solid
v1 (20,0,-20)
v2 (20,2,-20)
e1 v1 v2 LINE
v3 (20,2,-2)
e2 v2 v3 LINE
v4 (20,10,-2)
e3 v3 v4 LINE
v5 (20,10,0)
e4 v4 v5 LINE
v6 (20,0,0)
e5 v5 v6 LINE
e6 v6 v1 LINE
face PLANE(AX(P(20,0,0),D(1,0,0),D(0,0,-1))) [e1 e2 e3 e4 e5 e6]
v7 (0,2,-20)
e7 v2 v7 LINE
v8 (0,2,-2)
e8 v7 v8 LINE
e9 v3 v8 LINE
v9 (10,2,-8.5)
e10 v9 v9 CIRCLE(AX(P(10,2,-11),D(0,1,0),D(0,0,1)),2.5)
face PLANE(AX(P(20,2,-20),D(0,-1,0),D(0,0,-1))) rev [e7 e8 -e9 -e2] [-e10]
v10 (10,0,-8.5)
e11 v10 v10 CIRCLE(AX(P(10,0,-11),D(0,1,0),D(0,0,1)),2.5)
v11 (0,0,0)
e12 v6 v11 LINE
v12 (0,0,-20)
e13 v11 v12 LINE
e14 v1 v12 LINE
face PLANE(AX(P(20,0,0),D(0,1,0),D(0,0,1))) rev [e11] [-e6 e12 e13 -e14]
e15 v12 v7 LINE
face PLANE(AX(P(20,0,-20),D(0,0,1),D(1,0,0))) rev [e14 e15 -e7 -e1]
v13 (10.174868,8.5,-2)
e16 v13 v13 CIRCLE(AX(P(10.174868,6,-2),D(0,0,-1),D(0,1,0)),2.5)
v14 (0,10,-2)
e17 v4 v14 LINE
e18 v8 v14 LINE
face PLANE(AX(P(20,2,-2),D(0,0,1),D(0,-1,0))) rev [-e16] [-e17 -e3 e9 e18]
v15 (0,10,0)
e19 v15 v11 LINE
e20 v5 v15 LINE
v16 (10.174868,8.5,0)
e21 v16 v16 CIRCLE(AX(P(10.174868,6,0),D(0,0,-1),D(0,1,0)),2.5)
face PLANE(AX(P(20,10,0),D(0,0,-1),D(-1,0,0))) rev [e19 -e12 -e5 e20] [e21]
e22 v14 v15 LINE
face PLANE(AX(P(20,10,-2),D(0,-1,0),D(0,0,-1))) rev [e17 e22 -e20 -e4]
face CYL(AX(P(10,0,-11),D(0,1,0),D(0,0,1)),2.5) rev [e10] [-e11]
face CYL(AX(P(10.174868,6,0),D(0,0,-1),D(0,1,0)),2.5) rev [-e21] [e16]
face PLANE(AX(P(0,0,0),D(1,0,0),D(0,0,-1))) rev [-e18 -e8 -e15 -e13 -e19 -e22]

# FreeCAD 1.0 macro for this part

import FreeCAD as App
import Part
import Sketcher

V = App.Vector

doc = App.newDocument("Part")
params = doc.addObject("Spreadsheet::Sheet", "Params")
for row, (alias, value) in enumerate([
    ("sketch1_width", "10 mm"),
    ("sketch1_width2", "2 mm"),
    ("sketch1_height", "20 mm"),
    ("pad1_length", "20 mm"),
    ("sketch2_diameter", "5 mm"),
    ("pocket1_length", "2 mm"),
    ("sketch3_diameter", "5 mm"),
    ("pocket2_length", "2 mm"),
], start=1):
    params.set(f"A{row}", alias)
    params.set(f"B{row}", "=" + value)
    params.setAlias(f"B{row}", alias)

body = doc.addObject("PartDesign::Body", "Body")

# Sketch on YZ plane
sketch1 = doc.addObject("Sketcher::SketchObject", "Sketch")
body.addObject(sketch1)
sketch1.AttachmentSupport = (doc.YZ_Plane, [""])
sketch1.MapMode = "FlatFace"
sketch1.addGeometry(Part.LineSegment(V(10, 0, 0), V(0, 0, 0)), False)
sketch1.addGeometry(Part.LineSegment(V(0, 0, 0), V(0, -20, 0)), False)
sketch1.addGeometry(Part.LineSegment(V(0, -20, 0), V(2, -20, 0)), False)
sketch1.addGeometry(Part.LineSegment(V(2, -20, 0), V(2, -2, 0)), False)
sketch1.addGeometry(Part.LineSegment(V(2, -2, 0), V(10, -2, 0)), False)
sketch1.addGeometry(Part.LineSegment(V(10, -2, 0), V(10, 0, 0)), False)
sketch1.addConstraint(Sketcher.Constraint("Coincident", 0, 2, 1, 1))
sketch1.addConstraint(Sketcher.Constraint("Coincident", 1, 2, 2, 1))
sketch1.addConstraint(Sketcher.Constraint("Coincident", 2, 2, 3, 1))
sketch1.addConstraint(Sketcher.Constraint("Coincident", 3, 2, 4, 1))
sketch1.addConstraint(Sketcher.Constraint("Coincident", 4, 2, 5, 1))
sketch1.addConstraint(Sketcher.Constraint("Coincident", 5, 2, 0, 1))
sketch1.addConstraint(Sketcher.Constraint("Horizontal", 0))
sketch1.addConstraint(Sketcher.Constraint("Vertical", 1))
sketch1.addConstraint(Sketcher.Constraint("Horizontal", 2))
sketch1.addConstraint(Sketcher.Constraint("Vertical", 3))
sketch1.addConstraint(Sketcher.Constraint("Horizontal", 4))
sketch1.addConstraint(Sketcher.Constraint("Vertical", 5))
sketch1.addConstraint(Sketcher.Constraint("Coincident", 0, 2, -1, 1))
sketch1.addConstraint(Sketcher.Constraint("Equal", 2, 5))
sketch1.addConstraint(Sketcher.Constraint("DistanceX", 0, 2, 0, 1, 10.0))
sketch1.addConstraint(Sketcher.Constraint("DistanceX", 2, 1, 2, 2, 2.0))
sketch1.addConstraint(Sketcher.Constraint("DistanceY", 1, 2, 1, 1, 20.0))
sketch1.setExpression("Constraints[14]", "Params.sketch1_width")
sketch1.setExpression("Constraints[15]", "Params.sketch1_width2")
sketch1.setExpression("Constraints[16]", "Params.sketch1_height")
pad1 = doc.addObject("PartDesign::Pad", "Pad")
body.addObject(pad1)
pad1.Profile = sketch1
pad1.setExpression("Length", "Params.pad1_length")

# Sketch on XY plane
sketch2 = doc.addObject("Sketcher::SketchObject", "Sketch001")
body.addObject(sketch2)
sketch2.AttachmentSupport = (doc.XY_Plane, [""])
sketch2.MapMode = "FlatFace"
sketch2.AttachmentOffset = App.Placement(V(0, 0, -2), App.Rotation())
sketch2.addGeometry(Part.Circle(V(10.2, 6, 0), V(0, 0, 1), 2.5), False)
sketch2.addConstraint(Sketcher.Constraint("Diameter", 0, 5.0))
sketch2.addConstraint(Sketcher.Constraint("DistanceY", -1, 1, 0, 3, 6.0))
sketch2.addConstraint(Sketcher.Constraint("DistanceX", -1, 1, 0, 3, 10.174868))
sketch2.setExpression("Constraints[0]", "Params.sketch2_diameter")
pocket1 = doc.addObject("PartDesign::Pocket", "Pocket")
body.addObject(pocket1)
pocket1.Profile = sketch2
pocket1.setExpression("Length", "Params.pocket1_length")
pocket1.Reversed = True

# Sketch on XZ plane
sketch3 = doc.addObject("Sketcher::SketchObject", "Sketch002")
body.addObject(sketch3)
sketch3.AttachmentSupport = (doc.XZ_Plane, [""])
sketch3.MapMode = "FlatFace"
sketch3.AttachmentOffset = App.Placement(V(0, 0, -2), App.Rotation())
sketch3.addGeometry(Part.Circle(V(10, -11, 0), V(0, 0, 1), 2.5), False)
sketch3.addConstraint(Sketcher.Constraint("Diameter", 0, 5.0))
sketch3.addConstraint(Sketcher.Constraint("DistanceX", -1, 1, 0, 3, 10.0))
sketch3.addConstraint(Sketcher.Constraint("DistanceY", 0, 3, -1, 1, 11.0))
sketch3.setExpression("Constraints[0]", "Params.sketch3_diameter")
pocket2 = doc.addObject("PartDesign::Pocket", "Pocket001")
body.addObject(pocket2)
pocket2.Profile = sketch3
pocket2.setExpression("Length", "Params.pocket2_length")
pocket2.Reversed = True

doc.recompute()
